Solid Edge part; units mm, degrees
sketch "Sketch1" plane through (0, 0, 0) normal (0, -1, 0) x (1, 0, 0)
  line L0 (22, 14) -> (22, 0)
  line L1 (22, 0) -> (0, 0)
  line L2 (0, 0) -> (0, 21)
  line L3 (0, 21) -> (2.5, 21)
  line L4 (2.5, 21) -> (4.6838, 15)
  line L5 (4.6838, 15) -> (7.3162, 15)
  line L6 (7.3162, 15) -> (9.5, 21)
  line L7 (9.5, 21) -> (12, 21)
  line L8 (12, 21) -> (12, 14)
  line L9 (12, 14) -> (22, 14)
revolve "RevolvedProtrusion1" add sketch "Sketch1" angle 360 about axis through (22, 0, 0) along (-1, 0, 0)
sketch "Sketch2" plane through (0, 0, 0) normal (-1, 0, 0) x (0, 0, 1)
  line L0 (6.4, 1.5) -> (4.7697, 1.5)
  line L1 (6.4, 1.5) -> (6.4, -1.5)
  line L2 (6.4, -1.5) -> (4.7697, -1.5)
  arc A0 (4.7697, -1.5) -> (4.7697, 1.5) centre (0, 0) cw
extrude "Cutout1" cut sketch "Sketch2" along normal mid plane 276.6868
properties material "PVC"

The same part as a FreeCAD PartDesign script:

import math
import FreeCAD as App
import Part
import Sketcher

V = App.Vector
Q = App.Units.Quantity


def add_polygon(sketch, points):
    """Adds a closed chain of lines whose ends are joined by coincident constraints."""
    first, n = sketch.GeometryCount, len(points)
    for a, b in zip(points, points[1:] + points[:1]):
        sketch.addGeometry(Part.LineSegment(App.Vector(*a, 0), App.Vector(*b, 0)), False)
    for i in range(n):
        sketch.addConstraint(Sketcher.Constraint("Coincident", first + i, 2, first + (i + 1) % n, 1))

doc = App.newDocument("Part")
params = doc.addObject("Spreadsheet::Sheet", "Params")
for row, (alias, value) in enumerate([
    ("sketch1_width", "10 mm"),
    ("sketch1_width2", "22 mm"),
    ("sketch1_height", "14 mm"),
    ("sketch1_height2", "7 mm"),
    ("sketch1_width3", "2.5 mm"),
    ("revolution_angle", "360 deg"),
    ("sketch2_radius", "5 mm"),
    ("sketch2_width", "3 mm"),
    ("pocket1_length", "276.6868 mm"),
], start=1):
    params.set(f"A{row}", alias)
    params.set(f"B{row}", "=" + value)
    params.setAlias(f"B{row}", alias)

body = doc.addObject("PartDesign::Body", "Body")

# Sketch on XZ plane
sketch1 = body.newObject("Sketcher::SketchObject", "Sketch")
sketch1.AttachmentSupport = (doc.getObject("XZ_Plane"), [""])
sketch1.MapMode = "FlatFace"
add_polygon(sketch1, [(22, 0), (22, 14), (12, 14), (12, 21), (9.5, 21), (7.3, 15), (4.7, 15), (2.5, 21), (0, 21), (0, 0)])  # lines 0-9
sketch1.addConstraint(Sketcher.Constraint("Vertical", 0))
sketch1.addConstraint(Sketcher.Constraint("Horizontal", 1))
sketch1.addConstraint(Sketcher.Constraint("Vertical", 2))
sketch1.addConstraint(Sketcher.Constraint("Horizontal", 3))
sketch1.addConstraint(Sketcher.Constraint("Horizontal", 5))
sketch1.addConstraint(Sketcher.Constraint("Horizontal", 7))
sketch1.addConstraint(Sketcher.Constraint("Vertical", 8))
sketch1.addConstraint(Sketcher.Constraint("Horizontal", 9))
sketch1.addConstraint(Sketcher.Constraint("Coincident", 8, 2, -1, 1))
sketch1.addConstraint(Sketcher.Constraint("Horizontal", 3, 2, 6, 2))
sketch1.addConstraint(Sketcher.Constraint("Equal", 3, 7))
sketch1.addConstraint(Sketcher.Constraint("Equal", 4, 6))
sketch1.addConstraint(Sketcher.Constraint("DistanceX", 1, 2, 1, 1, Q("10 mm")))
sketch1.addConstraint(Sketcher.Constraint("DistanceX", 9, 1, 9, 2, Q("22 mm")))
sketch1.addConstraint(Sketcher.Constraint("DistanceY", 0, 1, 0, 2, Q("14 mm")))
sketch1.addConstraint(Sketcher.Constraint("DistanceY", 2, 1, 2, 2, Q("7 mm")))
sketch1.addConstraint(Sketcher.Constraint("Angle", 4, Q("-109.9998 deg")))
sketch1.addConstraint(Sketcher.Constraint("DistanceX", 3, 2, 3, 1, Q("2.5 mm")))
sketch1.addConstraint(Sketcher.Constraint("DistanceY", -1, 1, 4, 2, Q("15 mm")))
sketch1.setExpression("Constraints[22]", "Params.sketch1_width")
sketch1.setExpression("Constraints[23]", "Params.sketch1_width2")
sketch1.setExpression("Constraints[24]", "Params.sketch1_height")
sketch1.setExpression("Constraints[25]", "Params.sketch1_height2")
sketch1.setExpression("Constraints[27]", "Params.sketch1_width3")
revolution = body.newObject("PartDesign::Revolution", "Revolution")
revolution.Profile = sketch1
revolution.ReferenceAxis = (sketch1, ["H_Axis"])
revolution.setExpression("Angle", "Params.revolution_angle")

# Sketch on YZ plane
sketch2 = body.newObject("Sketcher::SketchObject", "Sketch001")
sketch2.AttachmentSupport = (doc.getObject("YZ_Plane"), [""])
sketch2.MapMode = "FlatFace"
sketch2.addGeometry(Part.LineSegment(V(-1.5, 6.4, 0), V(1.5, 6.4, 0)), False)
sketch2.addGeometry(Part.LineSegment(V(1.5, 6.4, 0), V(1.5, 4.8, 0)), False)
sketch2.addGeometry(Part.ArcOfCircle(Part.Circle(V(0, 0, 0), V(0, 0, 1), 5), math.radians(107), math.radians(433)), False)
sketch2.addGeometry(Part.LineSegment(V(-1.5, 4.8, 0), V(-1.5, 6.4, 0)), False)
sketch2.addConstraint(Sketcher.Constraint("Coincident", 0, 2, 1, 1))
sketch2.addConstraint(Sketcher.Constraint("Coincident", 1, 2, 2, 2))
sketch2.addConstraint(Sketcher.Constraint("Coincident", 2, 1, 3, 1))
sketch2.addConstraint(Sketcher.Constraint("Coincident", 3, 2, 0, 1))
sketch2.addConstraint(Sketcher.Constraint("Horizontal", 0))
sketch2.addConstraint(Sketcher.Constraint("Vertical", 1))
sketch2.addConstraint(Sketcher.Constraint("Vertical", 3))
sketch2.addConstraint(Sketcher.Constraint("Coincident", 2, 3, -1, 1))
sketch2.addConstraint(Sketcher.Constraint("Horizontal", 1, 2, 2, 1))
sketch2.addConstraint(Sketcher.Constraint("Radius", 2, Q("5 mm")))
sketch2.addConstraint(Sketcher.Constraint("DistanceX", 0, 1, 0, 2, Q("3 mm")))
sketch2.addConstraint(Sketcher.Constraint("DistanceY", -1, 1, 0, 2, Q("6.4 mm")))
sketch2.setExpression("Constraints[9]", "Params.sketch2_radius")
sketch2.setExpression("Constraints[10]", "Params.sketch2_width")
pocket1 = body.newObject("PartDesign::Pocket", "Pocket")
pocket1.Profile = sketch2
pocket1.setExpression("Length", "Params.pocket1_length")
pocket1.Midplane = True

doc.recompute()
